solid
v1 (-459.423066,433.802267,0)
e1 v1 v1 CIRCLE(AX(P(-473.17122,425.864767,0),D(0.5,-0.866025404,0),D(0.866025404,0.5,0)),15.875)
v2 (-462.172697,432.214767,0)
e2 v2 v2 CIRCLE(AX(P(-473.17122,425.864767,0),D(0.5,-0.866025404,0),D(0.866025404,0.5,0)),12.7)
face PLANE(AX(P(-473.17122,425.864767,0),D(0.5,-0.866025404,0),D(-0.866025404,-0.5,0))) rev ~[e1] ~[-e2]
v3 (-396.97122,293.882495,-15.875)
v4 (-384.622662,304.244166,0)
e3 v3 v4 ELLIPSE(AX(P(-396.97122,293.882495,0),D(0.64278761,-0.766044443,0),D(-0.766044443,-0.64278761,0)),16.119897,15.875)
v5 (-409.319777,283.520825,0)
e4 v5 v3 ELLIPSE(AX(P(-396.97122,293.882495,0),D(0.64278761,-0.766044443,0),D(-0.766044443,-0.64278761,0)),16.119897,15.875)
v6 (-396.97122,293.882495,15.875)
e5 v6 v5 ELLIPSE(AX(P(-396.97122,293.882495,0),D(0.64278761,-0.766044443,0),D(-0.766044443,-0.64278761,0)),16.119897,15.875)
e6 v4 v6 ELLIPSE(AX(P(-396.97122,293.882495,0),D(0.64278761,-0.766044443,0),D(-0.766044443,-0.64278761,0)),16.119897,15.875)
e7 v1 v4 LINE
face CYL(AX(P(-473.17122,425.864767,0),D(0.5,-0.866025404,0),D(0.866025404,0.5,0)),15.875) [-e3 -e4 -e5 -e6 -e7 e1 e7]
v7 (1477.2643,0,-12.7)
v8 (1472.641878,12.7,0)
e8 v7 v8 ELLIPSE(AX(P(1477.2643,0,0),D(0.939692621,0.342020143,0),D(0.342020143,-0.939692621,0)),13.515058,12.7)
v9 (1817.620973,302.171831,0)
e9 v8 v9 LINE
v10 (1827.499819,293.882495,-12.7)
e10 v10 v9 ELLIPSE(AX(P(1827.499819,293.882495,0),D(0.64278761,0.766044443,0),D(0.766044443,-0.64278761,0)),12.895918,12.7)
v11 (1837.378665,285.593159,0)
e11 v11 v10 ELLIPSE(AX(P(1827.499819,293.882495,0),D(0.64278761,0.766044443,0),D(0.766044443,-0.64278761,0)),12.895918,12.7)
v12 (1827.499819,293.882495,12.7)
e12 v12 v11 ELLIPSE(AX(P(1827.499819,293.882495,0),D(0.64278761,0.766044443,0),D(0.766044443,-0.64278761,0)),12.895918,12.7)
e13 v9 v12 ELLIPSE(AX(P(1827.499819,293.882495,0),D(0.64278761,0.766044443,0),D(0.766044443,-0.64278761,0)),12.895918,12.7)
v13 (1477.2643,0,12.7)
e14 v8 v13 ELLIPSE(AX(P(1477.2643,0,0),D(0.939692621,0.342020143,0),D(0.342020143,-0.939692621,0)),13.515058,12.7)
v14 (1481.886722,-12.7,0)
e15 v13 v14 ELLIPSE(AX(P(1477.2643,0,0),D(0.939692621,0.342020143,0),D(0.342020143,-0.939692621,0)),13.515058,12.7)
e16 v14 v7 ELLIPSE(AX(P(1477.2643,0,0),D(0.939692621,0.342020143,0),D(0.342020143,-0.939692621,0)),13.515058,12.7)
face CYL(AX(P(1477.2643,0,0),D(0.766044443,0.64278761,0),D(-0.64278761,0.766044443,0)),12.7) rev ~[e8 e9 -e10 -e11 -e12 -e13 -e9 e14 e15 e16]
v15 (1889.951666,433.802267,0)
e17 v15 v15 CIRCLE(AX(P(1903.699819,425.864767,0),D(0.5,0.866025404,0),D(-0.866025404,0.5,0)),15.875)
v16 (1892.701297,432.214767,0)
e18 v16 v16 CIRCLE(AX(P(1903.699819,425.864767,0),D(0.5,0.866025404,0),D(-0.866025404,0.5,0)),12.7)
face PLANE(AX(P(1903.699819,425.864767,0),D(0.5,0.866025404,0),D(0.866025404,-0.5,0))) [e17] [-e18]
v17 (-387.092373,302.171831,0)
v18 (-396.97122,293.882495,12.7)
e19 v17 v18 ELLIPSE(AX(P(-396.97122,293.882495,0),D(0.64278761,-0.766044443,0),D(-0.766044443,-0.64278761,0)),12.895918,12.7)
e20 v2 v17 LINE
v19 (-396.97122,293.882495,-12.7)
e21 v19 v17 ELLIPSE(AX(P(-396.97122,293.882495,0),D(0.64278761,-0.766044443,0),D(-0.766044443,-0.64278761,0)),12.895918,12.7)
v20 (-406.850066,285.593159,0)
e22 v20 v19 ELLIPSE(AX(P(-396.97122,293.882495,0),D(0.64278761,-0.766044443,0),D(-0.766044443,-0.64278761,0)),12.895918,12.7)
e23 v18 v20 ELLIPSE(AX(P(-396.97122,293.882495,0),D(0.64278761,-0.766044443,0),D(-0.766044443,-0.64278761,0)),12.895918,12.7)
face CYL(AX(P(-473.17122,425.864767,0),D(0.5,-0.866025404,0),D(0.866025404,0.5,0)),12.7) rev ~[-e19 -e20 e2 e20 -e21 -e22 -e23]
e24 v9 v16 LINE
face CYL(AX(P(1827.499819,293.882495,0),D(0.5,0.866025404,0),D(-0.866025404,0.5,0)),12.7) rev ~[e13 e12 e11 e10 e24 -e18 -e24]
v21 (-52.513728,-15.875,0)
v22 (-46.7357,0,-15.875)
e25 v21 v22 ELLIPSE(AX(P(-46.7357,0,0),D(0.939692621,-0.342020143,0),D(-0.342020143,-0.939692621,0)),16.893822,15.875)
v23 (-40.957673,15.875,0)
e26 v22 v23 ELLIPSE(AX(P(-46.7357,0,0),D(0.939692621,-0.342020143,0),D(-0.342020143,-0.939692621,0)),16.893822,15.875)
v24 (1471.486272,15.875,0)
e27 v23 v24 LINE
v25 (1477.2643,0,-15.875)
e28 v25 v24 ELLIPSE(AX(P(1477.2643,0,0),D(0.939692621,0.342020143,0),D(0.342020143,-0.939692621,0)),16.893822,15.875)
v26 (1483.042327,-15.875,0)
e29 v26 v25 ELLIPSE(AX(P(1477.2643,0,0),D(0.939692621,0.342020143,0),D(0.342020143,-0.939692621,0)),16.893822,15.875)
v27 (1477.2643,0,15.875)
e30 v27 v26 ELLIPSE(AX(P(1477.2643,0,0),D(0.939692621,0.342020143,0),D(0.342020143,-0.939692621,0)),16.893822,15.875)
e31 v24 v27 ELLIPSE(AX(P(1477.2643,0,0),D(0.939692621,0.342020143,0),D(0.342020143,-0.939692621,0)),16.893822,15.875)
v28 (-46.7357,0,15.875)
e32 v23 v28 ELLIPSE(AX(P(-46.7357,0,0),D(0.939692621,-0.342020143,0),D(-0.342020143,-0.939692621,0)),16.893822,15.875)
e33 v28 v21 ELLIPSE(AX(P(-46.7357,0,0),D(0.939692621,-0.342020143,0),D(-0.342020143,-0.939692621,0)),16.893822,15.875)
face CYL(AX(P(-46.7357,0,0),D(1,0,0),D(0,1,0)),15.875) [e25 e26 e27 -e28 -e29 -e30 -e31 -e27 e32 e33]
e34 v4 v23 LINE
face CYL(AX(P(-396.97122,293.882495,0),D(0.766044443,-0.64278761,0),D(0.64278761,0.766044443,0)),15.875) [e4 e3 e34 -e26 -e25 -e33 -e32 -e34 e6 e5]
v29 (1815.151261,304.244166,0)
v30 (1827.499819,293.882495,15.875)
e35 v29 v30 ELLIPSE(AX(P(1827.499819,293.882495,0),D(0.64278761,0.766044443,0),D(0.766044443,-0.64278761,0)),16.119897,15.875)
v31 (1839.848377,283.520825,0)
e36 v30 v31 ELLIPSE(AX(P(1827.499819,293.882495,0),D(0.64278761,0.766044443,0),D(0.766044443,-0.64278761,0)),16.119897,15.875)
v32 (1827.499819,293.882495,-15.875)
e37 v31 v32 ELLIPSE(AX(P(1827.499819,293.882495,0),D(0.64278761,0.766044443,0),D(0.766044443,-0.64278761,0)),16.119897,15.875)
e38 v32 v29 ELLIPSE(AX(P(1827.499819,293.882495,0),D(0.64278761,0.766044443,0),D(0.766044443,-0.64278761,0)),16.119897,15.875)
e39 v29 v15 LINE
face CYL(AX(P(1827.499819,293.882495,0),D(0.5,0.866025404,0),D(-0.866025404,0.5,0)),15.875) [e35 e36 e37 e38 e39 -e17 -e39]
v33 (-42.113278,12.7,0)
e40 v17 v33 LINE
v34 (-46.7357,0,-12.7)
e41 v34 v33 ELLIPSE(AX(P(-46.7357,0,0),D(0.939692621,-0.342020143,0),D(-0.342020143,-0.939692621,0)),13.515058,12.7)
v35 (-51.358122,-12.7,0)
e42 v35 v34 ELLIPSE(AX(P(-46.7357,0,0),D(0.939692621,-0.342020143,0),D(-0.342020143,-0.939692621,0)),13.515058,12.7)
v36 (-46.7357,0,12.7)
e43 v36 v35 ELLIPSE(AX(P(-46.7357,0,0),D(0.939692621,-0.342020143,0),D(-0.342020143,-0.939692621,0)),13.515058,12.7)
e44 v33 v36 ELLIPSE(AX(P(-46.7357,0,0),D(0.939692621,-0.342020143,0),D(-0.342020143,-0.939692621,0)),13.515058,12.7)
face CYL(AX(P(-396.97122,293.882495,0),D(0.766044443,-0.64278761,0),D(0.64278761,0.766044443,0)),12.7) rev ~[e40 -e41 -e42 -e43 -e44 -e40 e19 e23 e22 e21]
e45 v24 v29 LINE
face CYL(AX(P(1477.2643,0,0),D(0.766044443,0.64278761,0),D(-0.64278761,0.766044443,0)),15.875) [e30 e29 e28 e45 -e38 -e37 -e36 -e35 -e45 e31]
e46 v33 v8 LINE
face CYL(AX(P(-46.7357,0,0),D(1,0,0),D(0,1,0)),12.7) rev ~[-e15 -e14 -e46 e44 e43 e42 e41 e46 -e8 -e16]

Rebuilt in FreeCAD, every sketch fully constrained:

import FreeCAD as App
import Part
import Sketcher
from FreeCAD import Vector
Q = App.Units.Quantity

doc = App.newDocument("Part")
params = doc.addObject("Spreadsheet::Sheet", "Params")
for row, (alias, value) in enumerate([
    ("sketch1_diameter", "1 in"),
    ("sketch1_diameter2", "1.25 in"),
    ("sketch2_width", "60 in"),
    ("sketch2_length", "6 in"),
    ("sketch2_length2", "18 in"),
], start=1):
    params.set(f"A{row}", alias)
    params.set(f"B{row}", "=" + value)
    params.setAlias(f"B{row}", alias)

body = doc.addObject("PartDesign::Body", "Body")

sketch1 = body.newObject("Sketcher::SketchObject", "Sketch")
sketch1.AttachmentSupport = (doc.getObject("YZ_Plane"), [""])
sketch1.MapMode = "FlatFace"
sketch1.addGeometry([
    Part.Circle(Vector(0, 0, 0), Vector(0, 0, 1), 16),
    Part.Circle(Vector(0, 0, 0), Vector(0, 0, 1), 13),
], False)
sketch1.addConstraint([
    Sketcher.Constraint("Coincident", 0, 3, -1, 1),
    Sketcher.Constraint("Coincident", 1, 3, -1, 1),
    Sketcher.Constraint("Diameter", 1, Q("1 in")),
    Sketcher.Constraint("Diameter", 0, Q("1.25 in")),
])
sketch1.setExpression("Constraints[2]", "Params.sketch1_diameter")
sketch1.setExpression("Constraints[3]", "Params.sketch1_diameter2")

sketch2 = body.newObject("Sketcher::SketchObject", "Sketch001")
sketch2.AttachmentSupport = (doc.getObject("XY_Plane"), [""])
sketch2.MapMode = "FlatFace"
sketch2.addGeometry([
    Part.LineSegment(Vector(-473, 426, 0), Vector(-397, 294, 0)),
    Part.LineSegment(Vector(-397, 294, 0), Vector(-47, 0, 0)),
    Part.LineSegment(Vector(-47, 0, 0), Vector(1477, 0, 0)),
    Part.LineSegment(Vector(1477, 0, 0), Vector(1827, 294, 0)),
    Part.LineSegment(Vector(1827, 294, 0), Vector(1904, 426, 0)),
], False)
sketch2.addConstraint([
    Sketcher.Constraint("Coincident", 0, 2, 1, 1),
    Sketcher.Constraint("Coincident", 1, 2, 2, 1),
    Sketcher.Constraint("Coincident", 2, 2, 3, 1),
    Sketcher.Constraint("Coincident", 3, 2, 4, 1),
    Sketcher.Constraint("Horizontal", 2),
    Sketcher.Constraint("PointOnObject", 1, 2, -1),
    Sketcher.Constraint("Horizontal", 0, 2, 3, 2),
    Sketcher.Constraint("Horizontal", 0, 1, 4, 2),
    Sketcher.Constraint("Equal", 1, 3),
    Sketcher.Constraint("Equal", 0, 4),
    Sketcher.Constraint("DistanceX", 2, 1, 2, 2, Q("60 in")),
    Sketcher.Constraint("Distance", 0, Q("6 in")),
    Sketcher.Constraint("Distance", 1, Q("18 in")),
    Sketcher.Constraint("Angle", 0, Q("-60 deg")),
    Sketcher.Constraint("Angle", 1, Q("-40 deg")),
    Sketcher.Constraint("DistanceX", 1, 2, -1, 1, Q("46.7357 mm")),
])
sketch2.setExpression("Constraints[10]", "Params.sketch2_width")
sketch2.setExpression("Constraints[11]", "Params.sketch2_length")
sketch2.setExpression("Constraints[12]", "Params.sketch2_length2")
doc.recompute()

additivepipe = body.newObject("PartDesign::AdditivePipe", "AdditivePipe")
additivepipe.Profile = sketch1
additivepipe.Spine = (sketch2, ["Edge1", "Edge2", "Edge3", "Edge4", "Edge5"])
additivepipe.Transition = "Right corner"

doc.recompute()
